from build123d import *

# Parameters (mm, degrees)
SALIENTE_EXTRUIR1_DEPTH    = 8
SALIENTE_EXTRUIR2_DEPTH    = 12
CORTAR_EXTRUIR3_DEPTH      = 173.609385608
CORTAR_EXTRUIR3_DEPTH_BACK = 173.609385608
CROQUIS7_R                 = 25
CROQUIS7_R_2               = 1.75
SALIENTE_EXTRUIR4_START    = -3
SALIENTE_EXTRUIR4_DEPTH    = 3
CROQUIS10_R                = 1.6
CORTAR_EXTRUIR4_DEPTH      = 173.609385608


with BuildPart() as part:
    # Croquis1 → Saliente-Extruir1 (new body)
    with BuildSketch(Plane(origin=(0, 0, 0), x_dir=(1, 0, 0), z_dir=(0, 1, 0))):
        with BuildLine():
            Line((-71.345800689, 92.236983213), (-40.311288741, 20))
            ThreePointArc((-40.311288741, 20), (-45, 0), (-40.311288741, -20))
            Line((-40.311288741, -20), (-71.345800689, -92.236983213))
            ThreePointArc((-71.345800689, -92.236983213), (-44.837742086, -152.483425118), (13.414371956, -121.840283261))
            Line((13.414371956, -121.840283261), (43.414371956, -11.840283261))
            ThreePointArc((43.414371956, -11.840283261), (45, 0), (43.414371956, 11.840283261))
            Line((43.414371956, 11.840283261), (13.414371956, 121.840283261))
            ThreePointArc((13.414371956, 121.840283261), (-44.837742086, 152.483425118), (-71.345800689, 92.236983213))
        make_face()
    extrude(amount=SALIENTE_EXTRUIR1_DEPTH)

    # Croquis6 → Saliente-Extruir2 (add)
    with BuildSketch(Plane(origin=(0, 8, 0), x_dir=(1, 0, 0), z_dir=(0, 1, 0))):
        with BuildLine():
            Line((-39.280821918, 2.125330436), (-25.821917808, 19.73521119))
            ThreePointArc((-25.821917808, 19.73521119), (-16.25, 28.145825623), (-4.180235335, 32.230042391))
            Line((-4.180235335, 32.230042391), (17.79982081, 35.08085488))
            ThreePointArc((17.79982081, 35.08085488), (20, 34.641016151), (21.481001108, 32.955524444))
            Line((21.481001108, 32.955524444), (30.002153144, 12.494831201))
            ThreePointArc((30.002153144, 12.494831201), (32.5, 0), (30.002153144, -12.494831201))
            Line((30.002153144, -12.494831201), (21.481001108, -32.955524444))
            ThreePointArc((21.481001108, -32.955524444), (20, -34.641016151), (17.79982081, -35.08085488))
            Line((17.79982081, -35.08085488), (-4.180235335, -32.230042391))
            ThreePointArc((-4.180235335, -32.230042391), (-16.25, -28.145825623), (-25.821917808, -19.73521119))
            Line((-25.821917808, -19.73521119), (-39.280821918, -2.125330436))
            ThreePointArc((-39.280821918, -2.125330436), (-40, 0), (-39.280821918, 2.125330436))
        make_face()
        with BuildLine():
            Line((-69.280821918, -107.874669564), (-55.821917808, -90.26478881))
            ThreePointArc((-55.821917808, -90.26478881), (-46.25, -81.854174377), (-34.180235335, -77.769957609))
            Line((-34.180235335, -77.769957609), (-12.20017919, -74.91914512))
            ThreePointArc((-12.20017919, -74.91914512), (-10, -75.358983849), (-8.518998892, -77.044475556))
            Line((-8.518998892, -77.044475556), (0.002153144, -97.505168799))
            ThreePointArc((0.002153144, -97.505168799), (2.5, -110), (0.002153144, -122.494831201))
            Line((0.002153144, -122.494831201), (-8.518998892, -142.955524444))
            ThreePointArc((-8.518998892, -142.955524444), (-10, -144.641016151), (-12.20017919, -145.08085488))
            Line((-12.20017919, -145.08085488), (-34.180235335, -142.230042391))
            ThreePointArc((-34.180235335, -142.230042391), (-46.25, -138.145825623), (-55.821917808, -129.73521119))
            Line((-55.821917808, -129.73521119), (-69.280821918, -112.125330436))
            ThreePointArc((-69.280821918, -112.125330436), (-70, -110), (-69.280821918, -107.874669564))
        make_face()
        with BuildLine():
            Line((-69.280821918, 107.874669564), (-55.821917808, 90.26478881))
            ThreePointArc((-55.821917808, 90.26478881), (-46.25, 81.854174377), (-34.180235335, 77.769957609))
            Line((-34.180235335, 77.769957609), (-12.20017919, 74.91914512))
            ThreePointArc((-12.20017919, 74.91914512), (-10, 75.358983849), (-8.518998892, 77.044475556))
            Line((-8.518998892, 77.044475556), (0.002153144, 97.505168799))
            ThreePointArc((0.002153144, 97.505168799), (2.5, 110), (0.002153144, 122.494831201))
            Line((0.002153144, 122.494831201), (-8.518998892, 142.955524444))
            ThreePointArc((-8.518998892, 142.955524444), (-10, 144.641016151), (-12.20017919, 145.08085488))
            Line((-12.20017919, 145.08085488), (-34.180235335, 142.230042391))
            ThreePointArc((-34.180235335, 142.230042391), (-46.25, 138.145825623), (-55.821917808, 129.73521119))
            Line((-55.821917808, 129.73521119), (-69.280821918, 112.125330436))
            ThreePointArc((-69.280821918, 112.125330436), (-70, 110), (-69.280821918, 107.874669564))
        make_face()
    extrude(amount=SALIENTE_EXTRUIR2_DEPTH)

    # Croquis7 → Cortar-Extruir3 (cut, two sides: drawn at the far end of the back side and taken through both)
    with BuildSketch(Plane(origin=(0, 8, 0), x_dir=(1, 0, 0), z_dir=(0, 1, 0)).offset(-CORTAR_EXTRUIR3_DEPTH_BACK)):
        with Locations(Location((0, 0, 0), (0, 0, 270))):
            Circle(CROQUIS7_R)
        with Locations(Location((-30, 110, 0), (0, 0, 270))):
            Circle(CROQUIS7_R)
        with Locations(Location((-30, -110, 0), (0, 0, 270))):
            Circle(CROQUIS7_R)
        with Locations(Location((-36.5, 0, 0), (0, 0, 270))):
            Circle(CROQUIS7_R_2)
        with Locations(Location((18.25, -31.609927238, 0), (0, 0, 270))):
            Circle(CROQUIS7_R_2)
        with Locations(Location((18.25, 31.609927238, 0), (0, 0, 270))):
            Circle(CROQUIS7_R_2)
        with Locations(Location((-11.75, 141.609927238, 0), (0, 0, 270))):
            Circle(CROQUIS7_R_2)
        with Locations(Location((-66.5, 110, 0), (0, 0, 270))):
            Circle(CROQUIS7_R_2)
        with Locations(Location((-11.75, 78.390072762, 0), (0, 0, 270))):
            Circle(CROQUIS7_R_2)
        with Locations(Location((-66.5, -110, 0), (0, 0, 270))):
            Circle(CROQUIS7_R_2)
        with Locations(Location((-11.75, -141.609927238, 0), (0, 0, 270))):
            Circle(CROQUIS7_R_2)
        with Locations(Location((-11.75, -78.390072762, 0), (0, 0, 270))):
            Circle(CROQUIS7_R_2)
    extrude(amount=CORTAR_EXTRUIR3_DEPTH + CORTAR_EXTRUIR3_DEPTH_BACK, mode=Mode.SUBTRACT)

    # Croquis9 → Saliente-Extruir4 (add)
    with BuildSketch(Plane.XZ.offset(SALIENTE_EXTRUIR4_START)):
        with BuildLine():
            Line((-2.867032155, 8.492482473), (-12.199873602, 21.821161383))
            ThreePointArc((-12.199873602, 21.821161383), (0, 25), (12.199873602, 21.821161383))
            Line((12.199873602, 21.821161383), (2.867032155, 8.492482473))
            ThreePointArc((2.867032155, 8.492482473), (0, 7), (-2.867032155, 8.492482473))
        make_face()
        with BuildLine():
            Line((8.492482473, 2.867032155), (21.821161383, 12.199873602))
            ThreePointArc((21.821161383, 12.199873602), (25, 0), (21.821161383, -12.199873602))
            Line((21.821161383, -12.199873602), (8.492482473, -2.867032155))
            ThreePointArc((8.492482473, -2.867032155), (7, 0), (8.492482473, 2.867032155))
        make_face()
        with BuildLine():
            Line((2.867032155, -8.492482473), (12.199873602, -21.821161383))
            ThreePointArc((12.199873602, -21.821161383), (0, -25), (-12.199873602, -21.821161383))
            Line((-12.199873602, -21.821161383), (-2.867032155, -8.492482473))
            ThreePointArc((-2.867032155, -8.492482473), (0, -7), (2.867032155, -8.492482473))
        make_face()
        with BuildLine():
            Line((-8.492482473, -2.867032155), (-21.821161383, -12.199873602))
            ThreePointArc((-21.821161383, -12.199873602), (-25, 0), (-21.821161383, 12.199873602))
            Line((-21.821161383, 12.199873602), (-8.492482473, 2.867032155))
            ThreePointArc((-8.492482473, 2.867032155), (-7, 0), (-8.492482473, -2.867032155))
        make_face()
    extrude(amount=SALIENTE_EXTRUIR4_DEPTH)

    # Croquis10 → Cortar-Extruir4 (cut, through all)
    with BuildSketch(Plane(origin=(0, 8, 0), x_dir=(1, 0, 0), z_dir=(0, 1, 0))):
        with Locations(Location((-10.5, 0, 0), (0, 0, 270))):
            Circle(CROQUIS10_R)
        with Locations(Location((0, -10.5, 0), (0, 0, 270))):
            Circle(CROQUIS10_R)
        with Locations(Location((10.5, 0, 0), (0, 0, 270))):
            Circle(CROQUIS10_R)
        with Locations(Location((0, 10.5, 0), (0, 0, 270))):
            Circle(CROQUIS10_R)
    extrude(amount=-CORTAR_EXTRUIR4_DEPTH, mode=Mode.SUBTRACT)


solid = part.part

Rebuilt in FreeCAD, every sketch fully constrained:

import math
import FreeCAD as App
import Part
import Sketcher
Q = App.Units.Quantity

doc = App.newDocument("Part")
body = doc.addObject("PartDesign::Body", "Body")

# Sketch on XZ plane
sketch1 = body.newObject("Sketcher::SketchObject", "Sketch")
sketch1.AttachmentSupport = (doc.getObject("XZ_Plane"), [""])
sketch1.MapMode = "FlatFace"
sketch1.addGeometry([
    Part.LineSegment(App.Vector(-71, -92, 0), App.Vector(-40, -20, 0)),  # 0
    Part.ArcOfCircle(Part.Circle(App.Vector(0, 0, 0), App.Vector(0, 0, 1), 45), math.radians(154), math.radians(206)),  # 1
    Part.LineSegment(App.Vector(-40, 20, 0), App.Vector(-71, 92, 0)),  # 2
    Part.ArcOfCircle(Part.Circle(App.Vector(-30, 110, 0), App.Vector(0, 0, 1), 45), math.radians(15), math.radians(203)),  # 3
    Part.LineSegment(App.Vector(13, 122, 0), App.Vector(43, 12, 0)),  # 4
    Part.ArcOfCircle(Part.Circle(App.Vector(0, 0, 0), App.Vector(0, 0, 1), 45), math.radians(-15), math.radians(15)),  # 5
    Part.LineSegment(App.Vector(43, -12, 0), App.Vector(13, -122, 0)),  # 6
    Part.ArcOfCircle(Part.Circle(App.Vector(-30, -110, 0), App.Vector(0, 0, 1), 45), math.radians(157), math.radians(345)),  # 7
], False)
sketch1.addConstraint([
    Sketcher.Constraint("Coincident", 0, 2, 1, 2),
    Sketcher.Constraint("Coincident", 1, 1, 2, 1),
    Sketcher.Constraint("Tangent", 2, 2, 3, 2),
    Sketcher.Constraint("Tangent", 3, 1, 4, 1),
    Sketcher.Constraint("Tangent", 4, 2, 5, 2),
    Sketcher.Constraint("Tangent", 5, 1, 6, 1),
    Sketcher.Constraint("Tangent", 6, 2, 7, 2),
    Sketcher.Constraint("Tangent", 7, 1, 0, 1),
    Sketcher.Constraint("Coincident", 1, 3, -1, 1),
    Sketcher.Constraint("Coincident", 5, 3, -1, 1),
    Sketcher.Constraint("Equal", 1, 3),
    Sketcher.Constraint("Equal", 3, 5),
    Sketcher.Constraint("Equal", 5, 7),
    Sketcher.Constraint("Symmetric", 3, 3, 7, 3, -1),
    Sketcher.Constraint("Vertical", 0, 2, 1, 1),
    Sketcher.Constraint("Radius", 1, 45.0),
    Sketcher.Constraint("DistanceX", 3, 3, -1, 1, 30.0),
    Sketcher.Constraint("DistanceY", -1, 1, 3, 3, 110.0),
    Sketcher.Constraint("DistanceY", 0, 2, -1, 1, 20.0),
])
pad1 = body.newObject("PartDesign::Pad", "Pad")
pad1.Profile = sketch1
pad1.Length = 8
pad1.Reversed = True

# Sketch on XZ plane
sketch2 = body.newObject("Sketcher::SketchObject", "Sketch001")
sketch2.AttachmentSupport = (doc.getObject("XZ_Plane"), [""])
sketch2.MapMode = "FlatFace"
sketch2.AttachmentOffset = App.Placement(App.Vector(0, 0, -8), App.Rotation())
sketch2.addGeometry([
    Part.LineSegment(App.Vector(-25.8, -19.7, 0), App.Vector(-39.3, -2.1, 0)),  # 0
    Part.ArcOfCircle(Part.Circle(App.Vector(-36.5, 0, 0), App.Vector(0, 0, 1), 3.5), math.radians(143), math.radians(217)),  # 1
    Part.LineSegment(App.Vector(-39.3, 2.1, 0), App.Vector(-25.8, 19.7, 0)),  # 2
    Part.ArcOfCircle(Part.Circle(App.Vector(0, 0, 0), App.Vector(0, 0, 1), 32.5), math.radians(97), math.radians(143)),  # 3
    Part.LineSegment(App.Vector(-4.2, 32.2, 0), App.Vector(17.8, 35.1, 0)),  # 4
    Part.ArcOfCircle(Part.Circle(App.Vector(18.2, 31.6, 0), App.Vector(0, 0, 1), 3.5), math.radians(23), math.radians(97)),  # 5
    Part.LineSegment(App.Vector(21.5, 33, 0), App.Vector(30, 12.5, 0)),  # 6
    Part.ArcOfCircle(Part.Circle(App.Vector(0, 0, 0), App.Vector(0, 0, 1), 32.5), math.radians(-23), math.radians(23)),  # 7
    Part.LineSegment(App.Vector(30, -12.5, 0), App.Vector(21.5, -33, 0)),  # 8
    Part.ArcOfCircle(Part.Circle(App.Vector(18.2, -31.6, 0), App.Vector(0, 0, 1), 3.5), math.radians(-97), math.radians(-23)),  # 9
    Part.LineSegment(App.Vector(17.8, -35.1, 0), App.Vector(-4.2, -32.2, 0)),  # 10
    Part.ArcOfCircle(Part.Circle(App.Vector(0, 0, 0), App.Vector(0, 0, 1), 32.5), math.radians(-143), math.radians(-97)),  # 11
    Part.LineSegment(App.Vector(-55.8, 90.3, 0), App.Vector(-69.3, 107.9, 0)),  # 12
    Part.ArcOfCircle(Part.Circle(App.Vector(-66.5, 110, 0), App.Vector(0, 0, 1), 3.5), math.radians(143), math.radians(217)),  # 13
    Part.LineSegment(App.Vector(-69.3, 112.1, 0), App.Vector(-55.8, 129.7, 0)),  # 14
    Part.ArcOfCircle(Part.Circle(App.Vector(-30, 110, 0), App.Vector(0, 0, 1), 32.5), math.radians(97), math.radians(143)),  # 15
    Part.LineSegment(App.Vector(-34.2, 142.2, 0), App.Vector(-12.2, 145.1, 0)),  # 16
    Part.ArcOfCircle(Part.Circle(App.Vector(-11.8, 141.6, 0), App.Vector(0, 0, 1), 3.5), math.radians(23), math.radians(97)),  # 17
    Part.LineSegment(App.Vector(-8.5, 143, 0), App.Vector(0, 122.5, 0)),  # 18
    Part.ArcOfCircle(Part.Circle(App.Vector(-30, 110, 0), App.Vector(0, 0, 1), 32.5), math.radians(-23), math.radians(23)),  # 19
    Part.LineSegment(App.Vector(0, 97.5, 0), App.Vector(-8.5, 77, 0)),  # 20
    Part.ArcOfCircle(Part.Circle(App.Vector(-11.8, 78.4, 0), App.Vector(0, 0, 1), 3.5), math.radians(-97), math.radians(-23)),  # 21
    Part.LineSegment(App.Vector(-12.2, 74.9, 0), App.Vector(-34.2, 77.8, 0)),  # 22
    Part.ArcOfCircle(Part.Circle(App.Vector(-30, 110, 0), App.Vector(0, 0, 1), 32.5), math.radians(-143), math.radians(-97)),  # 23
    Part.LineSegment(App.Vector(-69.3, -107.9, 0), App.Vector(-55.8, -90.3, 0)),  # 24
    Part.ArcOfCircle(Part.Circle(App.Vector(-30, -110, 0), App.Vector(0, 0, 1), 32.5), math.radians(97), math.radians(143)),  # 25
    Part.LineSegment(App.Vector(-34.2, -77.8, 0), App.Vector(-12.2, -74.9, 0)),  # 26
    Part.ArcOfCircle(Part.Circle(App.Vector(-11.8, -78.4, 0), App.Vector(0, 0, 1), 3.5), math.radians(23), math.radians(97)),  # 27
    Part.LineSegment(App.Vector(-8.5, -77, 0), App.Vector(0, -97.5, 0)),  # 28
    Part.ArcOfCircle(Part.Circle(App.Vector(-30, -110, 0), App.Vector(0, 0, 1), 32.5), math.radians(-23), math.radians(23)),  # 29
    Part.LineSegment(App.Vector(0, -122.5, 0), App.Vector(-8.5, -143, 0)),  # 30
    Part.ArcOfCircle(Part.Circle(App.Vector(-11.8, -141.6, 0), App.Vector(0, 0, 1), 3.5), math.radians(-97), math.radians(-23)),  # 31
    Part.LineSegment(App.Vector(-12.2, -145.1, 0), App.Vector(-34.2, -142.2, 0)),  # 32
    Part.ArcOfCircle(Part.Circle(App.Vector(-30, -110, 0), App.Vector(0, 0, 1), 32.5), math.radians(-143), math.radians(-97)),  # 33
    Part.LineSegment(App.Vector(-55.8, -129.7, 0), App.Vector(-69.3, -112.1, 0)),  # 34
    Part.ArcOfCircle(Part.Circle(App.Vector(-66.5, -110, 0), App.Vector(0, 0, 1), 3.5), math.radians(143), math.radians(217)),  # 35
], False)
sketch2.addConstraint([
    Sketcher.Constraint("Tangent", 0, 2, 1, 2),
    Sketcher.Constraint("Tangent", 1, 1, 2, 1),
    Sketcher.Constraint("Tangent", 2, 2, 3, 2),
    Sketcher.Constraint("Tangent", 3, 1, 4, 1),
    Sketcher.Constraint("Tangent", 4, 2, 5, 2),
    Sketcher.Constraint("Tangent", 5, 1, 6, 1),
    Sketcher.Constraint("Tangent", 6, 2, 7, 2),
    Sketcher.Constraint("Tangent", 7, 1, 8, 1),
    Sketcher.Constraint("Tangent", 8, 2, 9, 2),
    Sketcher.Constraint("Tangent", 9, 1, 10, 1),
    Sketcher.Constraint("Tangent", 10, 2, 11, 2),
    Sketcher.Constraint("Tangent", 11, 1, 0, 1),
    Sketcher.Constraint("Tangent", 12, 2, 13, 2),
    Sketcher.Constraint("Tangent", 13, 1, 14, 1),
    Sketcher.Constraint("Tangent", 14, 2, 15, 2),
    Sketcher.Constraint("Tangent", 15, 1, 16, 1),
    Sketcher.Constraint("Tangent", 16, 2, 17, 2),
    Sketcher.Constraint("Tangent", 17, 1, 18, 1),
    Sketcher.Constraint("Tangent", 18, 2, 19, 2),
    Sketcher.Constraint("Tangent", 19, 1, 20, 1),
    Sketcher.Constraint("Tangent", 20, 2, 21, 2),
    Sketcher.Constraint("Tangent", 21, 1, 22, 1),
    Sketcher.Constraint("Tangent", 22, 2, 23, 2),
    Sketcher.Constraint("Tangent", 23, 1, 12, 1),
    Sketcher.Constraint("Tangent", 24, 2, 25, 2),
    Sketcher.Constraint("Tangent", 25, 1, 26, 1),
    Sketcher.Constraint("Tangent", 26, 2, 27, 2),
    Sketcher.Constraint("Tangent", 27, 1, 28, 1),
    Sketcher.Constraint("Tangent", 28, 2, 29, 2),
    Sketcher.Constraint("Tangent", 29, 1, 30, 1),
    Sketcher.Constraint("Tangent", 30, 2, 31, 2),
    Sketcher.Constraint("Tangent", 31, 1, 32, 1),
    Sketcher.Constraint("Tangent", 32, 2, 33, 2),
    Sketcher.Constraint("Tangent", 33, 1, 34, 1),
    Sketcher.Constraint("Tangent", 34, 2, 35, 2),
    Sketcher.Constraint("Tangent", 35, 1, 24, 1),
    Sketcher.Constraint("Coincident", 3, 3, -1, 1),
    Sketcher.Constraint("Coincident", 7, 3, -1, 1),
    Sketcher.Constraint("Coincident", 11, 3, -1, 1),
    Sketcher.Constraint("Coincident", 19, 3, 15, 3),
    Sketcher.Constraint("Coincident", 23, 3, 15, 3),
    Sketcher.Constraint("Coincident", 29, 3, 25, 3),
    Sketcher.Constraint("Coincident", 33, 3, 25, 3),
    Sketcher.Constraint("Equal", 1, 5),
    Sketcher.Constraint("Equal", 3, 7),
    Sketcher.Constraint("Equal", 5, 9),
    Sketcher.Constraint("Equal", 7, 11),
    Sketcher.Constraint("Equal", 9, 13),
    Sketcher.Constraint("Equal", 11, 15),
    Sketcher.Constraint("Equal", 13, 17),
    Sketcher.Constraint("Equal", 15, 19),
    Sketcher.Constraint("Equal", 17, 21),
    Sketcher.Constraint("Equal", 19, 23),
    Sketcher.Constraint("Equal", 23, 25),
    Sketcher.Constraint("Equal", 21, 27),
    Sketcher.Constraint("Equal", 25, 29),
    Sketcher.Constraint("Equal", 27, 31),
    Sketcher.Constraint("Equal", 29, 33),
    Sketcher.Constraint("Equal", 31, 35),
    Sketcher.Constraint("Symmetric", 5, 3, 9, 3, -1),
    Sketcher.Constraint("Symmetric", 15, 3, 25, 3, -1),
    Sketcher.Constraint("Symmetric", 21, 3, 27, 3, -1),
    Sketcher.Constraint("Symmetric", 17, 3, 31, 3, -1),
    Sketcher.Constraint("Symmetric", 13, 3, 35, 3, -1),
    Sketcher.Constraint("PointOnObject", 1, 3, -1),
    Sketcher.Constraint("Parallel", 0, 12),
    Sketcher.Constraint("Parallel", 2, 14),
    Sketcher.Constraint("Parallel", 4, 16),
    Sketcher.Constraint("Parallel", 6, 18),
    Sketcher.Constraint("Parallel", 8, 20),
    Sketcher.Constraint("Parallel", 10, 22),
    Sketcher.Constraint("Equal", 2, 4),
    Sketcher.Constraint("Radius", 1, 3.5),
    Sketcher.Constraint("Radius", 3, 32.5),
    Sketcher.Constraint("DistanceY", -1, 1, 13, 3, 110.0),
    Sketcher.Constraint("DistanceX", 15, 3, -1, 1, 30.0),
    Sketcher.Constraint("DistanceX", 1, 3, -1, 1, 36.5),
    Sketcher.Constraint("Angle", 4, Q("7.390006 deg")),
])
pad2 = body.newObject("PartDesign::Pad", "Pad001")
pad2.Profile = sketch2
pad2.Length = 12
pad2.Reversed = True

# Sketch on XZ plane
sketch3 = body.newObject("Sketcher::SketchObject", "Sketch002")
sketch3.AttachmentSupport = (doc.getObject("XZ_Plane"), [""])
sketch3.MapMode = "FlatFace"
sketch3.AttachmentOffset = App.Placement(App.Vector(0, 0, -8), App.Rotation())
sketch3.addGeometry([
    Part.Circle(App.Vector(0, 0, 0), App.Vector(0, 0, 1), 25),  # 0
    Part.Circle(App.Vector(-30, -110, 0), App.Vector(0, 0, 1), 25),  # 1
    Part.Circle(App.Vector(-30, 110, 0), App.Vector(0, 0, 1), 25),  # 2
    Part.Circle(App.Vector(-36.5, 0, 0), App.Vector(0, 0, 1), 1.8),  # 3
    Part.Circle(App.Vector(18.2, 31.6, 0), App.Vector(0, 0, 1), 1.8),  # 4
    Part.Circle(App.Vector(18.2, -31.6, 0), App.Vector(0, 0, 1), 1.8),  # 5
    Part.Circle(App.Vector(-11.8, -141.6, 0), App.Vector(0, 0, 1), 1.8),  # 6
    Part.Circle(App.Vector(-66.5, -110, 0), App.Vector(0, 0, 1), 1.8),  # 7
    Part.Circle(App.Vector(-11.8, -78.4, 0), App.Vector(0, 0, 1), 1.8),  # 8
    Part.Circle(App.Vector(-66.5, 110, 0), App.Vector(0, 0, 1), 1.8),  # 9
    Part.Circle(App.Vector(-11.8, 141.6, 0), App.Vector(0, 0, 1), 1.8),  # 10
    Part.Circle(App.Vector(-11.8, 78.4, 0), App.Vector(0, 0, 1), 1.8),  # 11
], False)
sketch3.addConstraint([
    Sketcher.Constraint("Coincident", 0, 3, -1, 1),
    Sketcher.Constraint("Equal", 0, 1),
    Sketcher.Constraint("Equal", 1, 2),
    Sketcher.Constraint("Equal", 3, 4),
    Sketcher.Constraint("Equal", 4, 5),
    Sketcher.Constraint("Equal", 5, 6),
    Sketcher.Constraint("Equal", 6, 7),
    Sketcher.Constraint("Equal", 7, 8),
    Sketcher.Constraint("Equal", 8, 9),
    Sketcher.Constraint("Equal", 9, 10),
    Sketcher.Constraint("Equal", 10, 11),
    Sketcher.Constraint("Symmetric", 1, 3, 2, 3, -1),
    Sketcher.Constraint("Symmetric", 4, 3, 5, 3, -1),
    Sketcher.Constraint("Symmetric", 7, 3, 9, 3, -1),
    Sketcher.Constraint("Symmetric", 6, 3, 10, 3, -1),
    Sketcher.Constraint("Symmetric", 8, 3, 11, 3, -1),
    Sketcher.Constraint("PointOnObject", 3, 3, -1),
    Sketcher.Constraint("Horizontal", 1, 3, 7, 3),
    Sketcher.Constraint("Vertical", 6, 3, 8, 3),
    Sketcher.Constraint("Diameter", 0, 50.0),
    Sketcher.Constraint("Diameter", 3, 3.5),
    Sketcher.Constraint("DistanceX", 1, 3, -1, 1, 30.0),
    Sketcher.Constraint("DistanceY", 1, 3, -1, 1, 110.0),
    Sketcher.Constraint("DistanceX", 6, 3, 5, 3, 30.0),
    Sketcher.Constraint("DistanceY", 6, 3, 5, 3, 110.0),
    Sketcher.Constraint("DistanceX", 7, 3, 3, 3, 30.0),
    Sketcher.Constraint("DistanceX", 3, 3, -1, 1, 36.5),
    Sketcher.Constraint("DistanceX", -1, 1, 4, 3, 18.25),
    Sketcher.Constraint("DistanceY", -1, 1, 4, 3, 31.609927),
    Sketcher.Constraint("DistanceY", 8, 3, -1, 1, 78.390073),
])
pocket1 = body.newObject("PartDesign::Pocket", "Pocket")
pocket1.Profile = sketch3
pocket1.Type = "ThroughAll"
pocket1.Midplane = True

# Sketch on XZ plane
sketch4 = body.newObject("Sketcher::SketchObject", "Sketch003")
sketch4.AttachmentSupport = (doc.getObject("XZ_Plane"), [""])
sketch4.MapMode = "FlatFace"
sketch4.AttachmentOffset = App.Placement(App.Vector(0, 0, -3), App.Rotation())
sketch4.addGeometry([
    Part.LineSegment(App.Vector(-12.2, 21.8, 0), App.Vector(-2.9, 8.5, 0)),  # 0
    Part.ArcOfCircle(Part.Circle(App.Vector(0, 10.5, 0), App.Vector(0, 0, 1), 3.5), math.radians(-145), math.radians(-35)),  # 1
    Part.LineSegment(App.Vector(2.9, 8.5, 0), App.Vector(12.2, 21.8, 0)),  # 2
    Part.ArcOfCircle(Part.Circle(App.Vector(0, 0, 0), App.Vector(0, 0, 1), 25), math.radians(61), math.radians(119)),  # 3
    Part.LineSegment(App.Vector(21.8, 12.2, 0), App.Vector(8.5, 2.9, 0)),  # 4
    Part.ArcOfCircle(Part.Circle(App.Vector(10.5, 0, 0), App.Vector(0, 0, 1), 3.5), math.radians(125), math.radians(235)),  # 5
    Part.LineSegment(App.Vector(8.5, -2.9, 0), App.Vector(21.8, -12.2, 0)),  # 6
    Part.ArcOfCircle(Part.Circle(App.Vector(0, 0, 0), App.Vector(0, 0, 1), 25), math.radians(-29), math.radians(29)),  # 7
    Part.LineSegment(App.Vector(12.2, -21.8, 0), App.Vector(2.9, -8.5, 0)),  # 8
    Part.ArcOfCircle(Part.Circle(App.Vector(0, -10.5, 0), App.Vector(0, 0, 1), 3.5), math.radians(35), math.radians(145)),  # 9
    Part.LineSegment(App.Vector(-2.9, -8.5, 0), App.Vector(-12.2, -21.8, 0)),  # 10
    Part.ArcOfCircle(Part.Circle(App.Vector(0, 0, 0), App.Vector(0, 0, 1), 25), math.radians(-119), math.radians(-61)),  # 11
    Part.LineSegment(App.Vector(-21.8, -12.2, 0), App.Vector(-8.5, -2.9, 0)),  # 12
    Part.ArcOfCircle(Part.Circle(App.Vector(-10.5, 0, 0), App.Vector(0, 0, 1), 3.5), math.radians(-55), math.radians(55)),  # 13
    Part.LineSegment(App.Vector(-8.5, 2.9, 0), App.Vector(-21.8, 12.2, 0)),  # 14
    Part.ArcOfCircle(Part.Circle(App.Vector(0, 0, 0), App.Vector(0, 0, 1), 25), math.radians(151), math.radians(209)),  # 15
], False)
sketch4.addConstraint([
    Sketcher.Constraint("Tangent", 0, 2, 1, 1),
    Sketcher.Constraint("Tangent", 1, 2, 2, 1),
    Sketcher.Constraint("Coincident", 2, 2, 3, 1),
    Sketcher.Constraint("Coincident", 3, 2, 0, 1),
    Sketcher.Constraint("Tangent", 4, 2, 5, 1),
    Sketcher.Constraint("Tangent", 5, 2, 6, 1),
    Sketcher.Constraint("Coincident", 6, 2, 7, 1),
    Sketcher.Constraint("Coincident", 7, 2, 4, 1),
    Sketcher.Constraint("Tangent", 8, 2, 9, 1),
    Sketcher.Constraint("Tangent", 9, 2, 10, 1),
    Sketcher.Constraint("Coincident", 10, 2, 11, 1),
    Sketcher.Constraint("Coincident", 11, 2, 8, 1),
    Sketcher.Constraint("Tangent", 12, 2, 13, 1),
    Sketcher.Constraint("Tangent", 13, 2, 14, 1),
    Sketcher.Constraint("Coincident", 14, 2, 15, 1),
    Sketcher.Constraint("Coincident", 15, 2, 12, 1),
    Sketcher.Constraint("Coincident", 3, 3, -1, 1),
    Sketcher.Constraint("Coincident", 7, 3, -1, 1),
    Sketcher.Constraint("Coincident", 11, 3, -1, 1),
    Sketcher.Constraint("Coincident", 15, 3, -1, 1),
    Sketcher.Constraint("Equal", 1, 5),
    Sketcher.Constraint("Equal", 3, 7),
    Sketcher.Constraint("Equal", 5, 9),
    Sketcher.Constraint("Equal", 7, 11),
    Sketcher.Constraint("Equal", 9, 13),
    Sketcher.Constraint("Equal", 11, 15),
    Sketcher.Constraint("Symmetric", 1, 3, 9, 3, -1, 1),
    Sketcher.Constraint("Symmetric", 5, 3, 13, 3, -1, 1),
    Sketcher.Constraint("Symmetric", 0, 2, 1, 2, -2),
    Sketcher.Constraint("Symmetric", 5, 2, 12, 2, -2),
    Sketcher.Constraint("Perpendicular", 0, 4),
    Sketcher.Constraint("Perpendicular", 2, 6),
    Sketcher.Constraint("Perpendicular", 4, 8),
    Sketcher.Constraint("Perpendicular", 6, 10),
    Sketcher.Constraint("Perpendicular", 10, 14),
    Sketcher.Constraint("Equal", 2, 4),
    Sketcher.Constraint("Radius", 3, 25.0),
    Sketcher.Constraint("Radius", 1, 3.5),
    Sketcher.Constraint("Angle", 0, Q("-55 deg")),
    Sketcher.Constraint("DistanceY", 9, 3, 1, 3, 21.0),
])
pad3 = body.newObject("PartDesign::Pad", "Pad002")
pad3.Profile = sketch4
pad3.Length = 3

# Sketch on XZ plane
sketch5 = body.newObject("Sketcher::SketchObject", "Sketch004")
sketch5.AttachmentSupport = (doc.getObject("XZ_Plane"), [""])
sketch5.MapMode = "FlatFace"
sketch5.AttachmentOffset = App.Placement(App.Vector(0, 0, -8), App.Rotation())
sketch5.addGeometry([
    Part.Circle(App.Vector(-10.5, 0, 0), App.Vector(0, 0, 1), 1.6),
    Part.Circle(App.Vector(0, 10.5, 0), App.Vector(0, 0, 1), 1.6),
    Part.Circle(App.Vector(10.5, 0, 0), App.Vector(0, 0, 1), 1.6),
    Part.Circle(App.Vector(0, -10.5, 0), App.Vector(0, 0, 1), 1.6),
], False)
sketch5.addConstraint([
    Sketcher.Constraint("Equal", 0, 1),
    Sketcher.Constraint("Equal", 1, 2),
    Sketcher.Constraint("Equal", 2, 3),
    Sketcher.Constraint("Symmetric", 0, 3, 2, 3, -1, 1),
    Sketcher.Constraint("Symmetric", 1, 3, 3, 3, -1, 1),
    Sketcher.Constraint("PointOnObject", 0, 3, -1),
    Sketcher.Constraint("PointOnObject", 1, 3, -2),
    Sketcher.Constraint("Diameter", 0, 3.2),
    Sketcher.Constraint("DistanceX", 0, 3, 2, 3, 21.0),
    Sketcher.Constraint("DistanceY", 3, 3, 1, 3, 21.0),
])
pocket2 = body.newObject("PartDesign::Pocket", "Pocket001")
pocket2.Profile = sketch5
pocket2.Type = "ThroughAll"
pocket2.Reversed = True

doc.recompute()
